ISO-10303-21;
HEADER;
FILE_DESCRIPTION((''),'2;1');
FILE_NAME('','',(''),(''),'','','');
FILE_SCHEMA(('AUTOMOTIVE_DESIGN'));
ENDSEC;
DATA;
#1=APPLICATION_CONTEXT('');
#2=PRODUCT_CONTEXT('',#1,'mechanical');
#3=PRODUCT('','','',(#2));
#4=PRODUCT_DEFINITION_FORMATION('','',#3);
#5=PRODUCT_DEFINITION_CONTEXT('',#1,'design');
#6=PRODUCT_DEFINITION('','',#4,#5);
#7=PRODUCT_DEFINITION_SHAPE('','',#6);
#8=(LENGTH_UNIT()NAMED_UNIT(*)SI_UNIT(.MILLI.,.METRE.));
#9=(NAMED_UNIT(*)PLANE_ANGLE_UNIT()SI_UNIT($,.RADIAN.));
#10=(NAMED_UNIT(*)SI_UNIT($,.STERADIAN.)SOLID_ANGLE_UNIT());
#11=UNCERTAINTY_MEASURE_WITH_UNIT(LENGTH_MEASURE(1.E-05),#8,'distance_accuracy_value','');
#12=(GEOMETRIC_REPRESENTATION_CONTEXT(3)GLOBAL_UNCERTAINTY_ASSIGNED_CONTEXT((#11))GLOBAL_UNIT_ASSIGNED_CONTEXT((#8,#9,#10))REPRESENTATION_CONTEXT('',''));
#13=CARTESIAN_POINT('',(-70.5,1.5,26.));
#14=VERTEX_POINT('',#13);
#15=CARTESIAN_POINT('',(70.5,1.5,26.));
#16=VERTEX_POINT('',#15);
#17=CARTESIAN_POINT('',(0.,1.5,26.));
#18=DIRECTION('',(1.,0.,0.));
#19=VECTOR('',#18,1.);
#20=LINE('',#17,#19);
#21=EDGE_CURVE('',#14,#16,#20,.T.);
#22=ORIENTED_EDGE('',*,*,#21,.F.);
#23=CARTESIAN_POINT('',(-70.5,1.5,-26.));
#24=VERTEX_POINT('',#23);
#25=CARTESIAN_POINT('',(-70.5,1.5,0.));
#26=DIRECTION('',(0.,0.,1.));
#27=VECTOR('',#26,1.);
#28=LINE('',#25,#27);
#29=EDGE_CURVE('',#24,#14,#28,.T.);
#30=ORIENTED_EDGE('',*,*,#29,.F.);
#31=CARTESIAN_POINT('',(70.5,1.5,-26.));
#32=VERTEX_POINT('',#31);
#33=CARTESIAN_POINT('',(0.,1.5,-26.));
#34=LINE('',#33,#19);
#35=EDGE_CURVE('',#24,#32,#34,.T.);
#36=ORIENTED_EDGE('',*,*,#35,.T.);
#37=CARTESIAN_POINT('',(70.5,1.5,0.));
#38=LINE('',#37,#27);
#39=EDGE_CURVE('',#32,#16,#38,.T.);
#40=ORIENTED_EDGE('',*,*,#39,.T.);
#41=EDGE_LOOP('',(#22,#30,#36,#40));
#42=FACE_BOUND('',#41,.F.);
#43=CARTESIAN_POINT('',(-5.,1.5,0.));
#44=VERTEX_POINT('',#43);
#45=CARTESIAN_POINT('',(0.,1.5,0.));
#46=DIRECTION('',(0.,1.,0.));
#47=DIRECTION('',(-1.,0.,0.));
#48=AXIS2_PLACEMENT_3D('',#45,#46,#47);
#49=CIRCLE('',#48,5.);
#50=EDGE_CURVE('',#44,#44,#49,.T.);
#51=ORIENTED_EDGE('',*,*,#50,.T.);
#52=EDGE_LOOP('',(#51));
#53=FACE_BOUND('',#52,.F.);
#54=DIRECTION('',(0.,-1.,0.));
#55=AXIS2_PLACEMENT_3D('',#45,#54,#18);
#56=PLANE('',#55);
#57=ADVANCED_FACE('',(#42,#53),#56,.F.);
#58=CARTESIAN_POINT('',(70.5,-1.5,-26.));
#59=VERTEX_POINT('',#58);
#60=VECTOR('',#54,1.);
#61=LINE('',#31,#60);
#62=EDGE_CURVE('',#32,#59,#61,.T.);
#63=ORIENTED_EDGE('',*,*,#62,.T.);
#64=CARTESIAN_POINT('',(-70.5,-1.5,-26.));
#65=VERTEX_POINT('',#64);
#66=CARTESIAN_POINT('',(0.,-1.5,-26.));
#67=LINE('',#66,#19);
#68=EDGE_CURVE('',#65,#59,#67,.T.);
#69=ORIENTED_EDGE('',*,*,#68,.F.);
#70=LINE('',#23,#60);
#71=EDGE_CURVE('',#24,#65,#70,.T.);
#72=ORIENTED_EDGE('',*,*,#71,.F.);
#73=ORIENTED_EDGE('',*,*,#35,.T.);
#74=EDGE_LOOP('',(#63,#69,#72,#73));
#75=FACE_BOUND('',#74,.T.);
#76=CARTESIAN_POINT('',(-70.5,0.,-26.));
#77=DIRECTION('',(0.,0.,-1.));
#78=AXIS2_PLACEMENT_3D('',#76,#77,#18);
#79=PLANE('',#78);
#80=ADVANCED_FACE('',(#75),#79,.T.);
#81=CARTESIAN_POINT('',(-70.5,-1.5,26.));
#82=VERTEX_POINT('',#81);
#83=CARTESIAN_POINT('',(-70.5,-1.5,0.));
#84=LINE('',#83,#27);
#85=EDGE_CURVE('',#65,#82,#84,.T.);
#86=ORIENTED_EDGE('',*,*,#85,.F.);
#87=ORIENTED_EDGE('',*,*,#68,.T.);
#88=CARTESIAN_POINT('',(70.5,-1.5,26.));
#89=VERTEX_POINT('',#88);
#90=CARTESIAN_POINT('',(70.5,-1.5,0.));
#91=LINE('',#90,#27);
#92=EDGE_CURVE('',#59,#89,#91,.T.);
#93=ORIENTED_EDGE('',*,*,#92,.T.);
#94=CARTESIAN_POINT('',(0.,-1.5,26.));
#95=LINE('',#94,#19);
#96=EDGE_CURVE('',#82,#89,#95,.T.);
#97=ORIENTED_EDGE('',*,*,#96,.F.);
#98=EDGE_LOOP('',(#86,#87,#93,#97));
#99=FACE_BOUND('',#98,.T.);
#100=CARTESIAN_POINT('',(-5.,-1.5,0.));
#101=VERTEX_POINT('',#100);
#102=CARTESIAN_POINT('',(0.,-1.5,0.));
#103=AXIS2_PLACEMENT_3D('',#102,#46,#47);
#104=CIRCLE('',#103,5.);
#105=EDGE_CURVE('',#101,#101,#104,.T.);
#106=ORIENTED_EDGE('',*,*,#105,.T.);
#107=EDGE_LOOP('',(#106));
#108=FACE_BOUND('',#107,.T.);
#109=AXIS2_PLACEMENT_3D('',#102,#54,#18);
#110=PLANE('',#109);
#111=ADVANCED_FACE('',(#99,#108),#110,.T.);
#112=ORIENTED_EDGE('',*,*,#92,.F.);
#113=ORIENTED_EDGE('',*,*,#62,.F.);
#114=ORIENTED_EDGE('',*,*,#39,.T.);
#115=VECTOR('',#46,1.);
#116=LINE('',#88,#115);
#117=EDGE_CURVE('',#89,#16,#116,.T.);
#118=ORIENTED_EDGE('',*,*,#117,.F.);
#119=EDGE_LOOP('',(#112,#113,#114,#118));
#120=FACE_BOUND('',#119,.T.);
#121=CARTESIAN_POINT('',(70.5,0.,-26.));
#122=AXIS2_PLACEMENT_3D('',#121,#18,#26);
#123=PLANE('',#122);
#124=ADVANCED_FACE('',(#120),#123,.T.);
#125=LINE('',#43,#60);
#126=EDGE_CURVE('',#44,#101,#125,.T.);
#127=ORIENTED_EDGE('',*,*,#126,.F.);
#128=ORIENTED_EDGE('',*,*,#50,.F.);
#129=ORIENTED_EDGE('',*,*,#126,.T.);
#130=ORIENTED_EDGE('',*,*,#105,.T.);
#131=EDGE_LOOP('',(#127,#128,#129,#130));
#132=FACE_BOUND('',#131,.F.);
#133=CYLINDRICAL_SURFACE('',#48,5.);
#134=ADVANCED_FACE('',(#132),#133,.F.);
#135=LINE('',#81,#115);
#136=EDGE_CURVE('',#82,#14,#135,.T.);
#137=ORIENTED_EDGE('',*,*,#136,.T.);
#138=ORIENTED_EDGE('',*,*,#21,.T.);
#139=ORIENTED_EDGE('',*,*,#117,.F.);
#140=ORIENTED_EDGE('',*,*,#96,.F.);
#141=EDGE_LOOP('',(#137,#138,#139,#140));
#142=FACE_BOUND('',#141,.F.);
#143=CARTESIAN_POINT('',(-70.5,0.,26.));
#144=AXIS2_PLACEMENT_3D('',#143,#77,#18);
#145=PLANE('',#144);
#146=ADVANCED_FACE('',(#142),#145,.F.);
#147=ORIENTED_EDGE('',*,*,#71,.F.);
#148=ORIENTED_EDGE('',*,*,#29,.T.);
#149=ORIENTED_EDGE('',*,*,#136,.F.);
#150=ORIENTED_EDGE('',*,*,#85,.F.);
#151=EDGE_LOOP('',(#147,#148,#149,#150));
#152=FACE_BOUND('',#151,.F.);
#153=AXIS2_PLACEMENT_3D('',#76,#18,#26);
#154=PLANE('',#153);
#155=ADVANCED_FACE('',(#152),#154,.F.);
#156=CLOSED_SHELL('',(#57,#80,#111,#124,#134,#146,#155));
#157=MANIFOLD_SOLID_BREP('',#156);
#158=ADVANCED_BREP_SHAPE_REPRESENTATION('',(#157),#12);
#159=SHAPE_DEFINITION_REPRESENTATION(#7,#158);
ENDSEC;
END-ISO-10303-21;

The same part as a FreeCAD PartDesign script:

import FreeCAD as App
import Part
import Sketcher
Q = App.Units.Quantity


def add_polygon(sketch, points):
    """Adds a closed chain of lines whose ends are joined by coincident constraints."""
    first, n = sketch.GeometryCount, len(points)
    for a, b in zip(points, points[1:] + points[:1]):
        sketch.addGeometry(Part.LineSegment(App.Vector(*a, 0), App.Vector(*b, 0)), False)
    for i in range(n):
        sketch.addConstraint(Sketcher.Constraint("Coincident", first + i, 2, first + (i + 1) % n, 1))

doc = App.newDocument("Part")
body = doc.addObject("PartDesign::Body", "Body")

# Sketch on XZ plane
sketch1 = body.newObject("Sketcher::SketchObject", "Sketch")
sketch1.AttachmentSupport = (doc.getObject("XZ_Plane"), [""])
sketch1.MapMode = "FlatFace"
add_polygon(sketch1, [(-70, 26), (-70, -26), (70, -26), (70, 26)])  # lines 0-3
sketch1.addConstraint([
    Sketcher.Constraint("Vertical", 0),
    Sketcher.Constraint("Horizontal", 1),
    Sketcher.Constraint("Vertical", 2),
    Sketcher.Constraint("Horizontal", 3),
    Sketcher.Constraint("Symmetric", 0, 2, 2, 2, -1, 1),
    Sketcher.Constraint("DistanceX", 1, 1, 1, 2, Q("141 mm")),
    Sketcher.Constraint("DistanceY", 0, 2, 0, 1, Q("52 mm")),
])
pad1 = body.newObject("PartDesign::Pad", "Pad")
pad1.Profile = sketch1
pad1.Length = 3
pad1.Midplane = True

# Sketch on XZ plane
sketch2 = body.newObject("Sketcher::SketchObject", "Sketch001")
sketch2.AttachmentSupport = (doc.getObject("XZ_Plane"), [""])
sketch2.MapMode = "FlatFace"
sketch2.AttachmentOffset = App.Placement(App.Vector(0, 0, -1.5), App.Rotation())
sketch2.addGeometry(Part.Circle(App.Vector(0, 0, 0), App.Vector(0, 0, 1), 5), False)
sketch2.addConstraint([
    Sketcher.Constraint("Coincident", 0, 3, -1, 1),
    Sketcher.Constraint("Diameter", 0, Q("10 mm")),
])
pocket1 = body.newObject("PartDesign::Pocket", "Pocket")
pocket1.Profile = sketch2
pocket1.Type = "ThroughAll"
pocket1.Reversed = True

doc.recompute()
